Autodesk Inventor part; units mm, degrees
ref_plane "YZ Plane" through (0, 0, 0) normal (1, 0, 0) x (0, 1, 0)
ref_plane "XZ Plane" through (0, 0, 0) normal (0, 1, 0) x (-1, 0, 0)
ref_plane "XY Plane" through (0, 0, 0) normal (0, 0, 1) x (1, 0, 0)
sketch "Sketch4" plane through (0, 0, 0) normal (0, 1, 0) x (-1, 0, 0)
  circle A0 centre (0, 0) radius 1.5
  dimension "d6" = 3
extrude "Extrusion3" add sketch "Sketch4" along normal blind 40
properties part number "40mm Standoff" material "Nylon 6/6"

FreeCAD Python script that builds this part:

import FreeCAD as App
import Part
import Sketcher
Q = App.Units.Quantity

doc = App.newDocument("Part")
body = doc.addObject("PartDesign::Body", "Body")

# Sketch on XZ plane
sketch1 = doc.addObject("Sketcher::SketchObject", "Sketch")
body.addObject(sketch1)
sketch1.AttachmentSupport = (doc.XZ_Plane, [""])
sketch1.MapMode = "FlatFace"
sketch1.addGeometry(Part.Circle(App.Vector(0, 0, 0), App.Vector(0, 0, 1), 1.5), False)
sketch1.addConstraint(Sketcher.Constraint("Coincident", 0, 3, -1, 1))
sketch1.addConstraint(Sketcher.Constraint("Diameter", 0, Q("3 mm")))
pad1 = doc.addObject("PartDesign::Pad", "Pad")
body.addObject(pad1)
pad1.Profile = sketch1
pad1.Length = 40
pad1.Reversed = True

doc.recompute()
